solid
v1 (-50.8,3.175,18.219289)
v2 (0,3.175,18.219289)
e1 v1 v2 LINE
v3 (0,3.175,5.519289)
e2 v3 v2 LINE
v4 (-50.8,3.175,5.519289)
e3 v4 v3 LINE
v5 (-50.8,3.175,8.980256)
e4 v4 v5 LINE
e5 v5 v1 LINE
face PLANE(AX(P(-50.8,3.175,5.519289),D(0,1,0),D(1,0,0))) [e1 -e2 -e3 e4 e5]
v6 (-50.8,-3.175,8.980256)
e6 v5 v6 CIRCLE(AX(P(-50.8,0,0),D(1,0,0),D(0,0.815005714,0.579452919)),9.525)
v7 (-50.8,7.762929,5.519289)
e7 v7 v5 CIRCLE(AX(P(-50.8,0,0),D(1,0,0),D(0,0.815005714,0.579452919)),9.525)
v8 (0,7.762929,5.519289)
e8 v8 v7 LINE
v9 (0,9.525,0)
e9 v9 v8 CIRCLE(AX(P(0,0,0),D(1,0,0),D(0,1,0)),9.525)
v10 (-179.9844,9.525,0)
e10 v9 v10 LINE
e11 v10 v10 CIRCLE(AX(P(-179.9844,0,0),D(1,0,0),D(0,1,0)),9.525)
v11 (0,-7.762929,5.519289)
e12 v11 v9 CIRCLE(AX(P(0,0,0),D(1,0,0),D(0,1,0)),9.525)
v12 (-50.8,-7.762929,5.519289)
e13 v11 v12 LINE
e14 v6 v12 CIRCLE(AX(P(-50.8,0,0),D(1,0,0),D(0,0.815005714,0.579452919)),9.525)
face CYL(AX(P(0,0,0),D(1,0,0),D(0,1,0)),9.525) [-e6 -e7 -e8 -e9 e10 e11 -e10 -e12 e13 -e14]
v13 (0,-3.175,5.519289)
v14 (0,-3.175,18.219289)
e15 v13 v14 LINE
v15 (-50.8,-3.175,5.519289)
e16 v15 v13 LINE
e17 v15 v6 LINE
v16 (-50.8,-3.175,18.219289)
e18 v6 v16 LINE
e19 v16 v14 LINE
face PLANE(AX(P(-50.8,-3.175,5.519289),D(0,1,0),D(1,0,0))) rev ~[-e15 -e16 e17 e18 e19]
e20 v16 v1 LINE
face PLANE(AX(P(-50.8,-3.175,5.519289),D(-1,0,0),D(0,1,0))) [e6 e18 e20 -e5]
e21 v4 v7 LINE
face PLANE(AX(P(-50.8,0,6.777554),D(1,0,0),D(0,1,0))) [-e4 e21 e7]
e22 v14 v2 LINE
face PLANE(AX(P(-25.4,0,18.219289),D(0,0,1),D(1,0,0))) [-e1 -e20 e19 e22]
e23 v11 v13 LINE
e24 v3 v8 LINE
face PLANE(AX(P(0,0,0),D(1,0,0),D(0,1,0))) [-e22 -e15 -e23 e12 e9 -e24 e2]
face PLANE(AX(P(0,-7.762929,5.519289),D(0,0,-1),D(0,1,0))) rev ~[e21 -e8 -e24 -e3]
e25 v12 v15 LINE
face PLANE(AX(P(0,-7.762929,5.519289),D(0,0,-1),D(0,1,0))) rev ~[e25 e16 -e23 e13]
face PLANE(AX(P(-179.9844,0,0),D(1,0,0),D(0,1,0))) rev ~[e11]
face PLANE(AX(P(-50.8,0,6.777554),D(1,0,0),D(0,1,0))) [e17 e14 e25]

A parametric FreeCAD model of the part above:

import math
import FreeCAD as App
import Part
import Sketcher

V = App.Vector
Q = App.Units.Quantity


def add_polygon(sketch, points):
    """Adds a closed chain of lines whose ends are joined by coincident constraints."""
    first, n = sketch.GeometryCount, len(points)
    for a, b in zip(points, points[1:] + points[:1]):
        sketch.addGeometry(Part.LineSegment(App.Vector(*a, 0), App.Vector(*b, 0)), False)
    for i in range(n):
        sketch.addConstraint(Sketcher.Constraint("Coincident", first + i, 2, first + (i + 1) % n, 1))

doc = App.newDocument("Part")
params = doc.addObject("Spreadsheet::Sheet", "Params")
for row, (alias, value) in enumerate([
    ("sketch1_diameter", "0.75 in"),
    ("pad1_length", "7.086 in"),
    ("sketch2_radius", "0.375 in"),
    ("pocket1_length", "2 in"),
    ("sketch3_width", "2 in"),
    ("sketch3_height", "0.25 in"),
    ("pad2_length", "0.5 in"),
], start=1):
    params.set(f"A{row}", alias)
    params.set(f"B{row}", "=" + value)
    params.setAlias(f"B{row}", alias)

body = doc.addObject("PartDesign::Body", "Body")

# Sketch on YZ plane
sketch1 = doc.addObject("Sketcher::SketchObject", "Sketch")
body.addObject(sketch1)
sketch1.AttachmentSupport = (doc.YZ_Plane, [""])
sketch1.MapMode = "FlatFace"
sketch1.addGeometry(Part.Circle(V(0, 0, 0), V(0, 0, 1), 10), False)
sketch1.addConstraint([
    Sketcher.Constraint("Coincident", 0, 3, -1, 1),
    Sketcher.Constraint("Diameter", 0, Q("0.75 in")),
])
sketch1.setExpression("Constraints[1]", "Params.sketch1_diameter")
pad1 = doc.addObject("PartDesign::Pad", "Pad")
body.addObject(pad1)
pad1.Profile = sketch1
pad1.setExpression("Length", "Params.pad1_length")
pad1.Reversed = True

# Sketch on YZ plane
sketch2 = doc.addObject("Sketcher::SketchObject", "Sketch001")
body.addObject(sketch2)
sketch2.AttachmentSupport = (doc.YZ_Plane, [""])
sketch2.MapMode = "FlatFace"
sketch2.addGeometry([
    Part.LineSegment(V(-8, 6, 0), V(8, 6, 0)),
    Part.ArcOfCircle(Part.Circle(V(0, 0, 0), V(0, 0, 1), 10), math.radians(35), math.radians(145)),
], False)
sketch2.addConstraint([
    Sketcher.Constraint("Coincident", 0, 1, 1, 2),
    Sketcher.Constraint("Coincident", 1, 1, 0, 2),
    Sketcher.Constraint("Horizontal", 0),
    Sketcher.Constraint("Coincident", 1, 3, -1, 1),
    Sketcher.Constraint("Radius", 1, Q("0.375 in")),
    Sketcher.Constraint("DistanceX", 0, 1, 0, 2, Q("15.525859 mm")),
])
sketch2.setExpression("Constraints[4]", "Params.sketch2_radius")
pocket1 = doc.addObject("PartDesign::Pocket", "Pocket")
body.addObject(pocket1)
pocket1.Profile = sketch2
pocket1.setExpression("Length", "Params.pocket1_length")

# Sketch on XY plane
sketch3 = doc.addObject("Sketcher::SketchObject", "Sketch002")
body.addObject(sketch3)
sketch3.AttachmentSupport = (doc.XY_Plane, [""])
sketch3.MapMode = "FlatFace"
sketch3.AttachmentOffset = App.Placement(V(0, 0, 5.519289), App.Rotation())
add_polygon(sketch3, [(-51, 3), (-51, -3), (0, -3), (0, 3)])  # lines 0-3
sketch3.addConstraint([
    Sketcher.Constraint("Vertical", 0),
    Sketcher.Constraint("Horizontal", 1),
    Sketcher.Constraint("Vertical", 2),
    Sketcher.Constraint("Horizontal", 3),
    Sketcher.Constraint("Symmetric", 1, 2, 2, 2, -1, 1),
    Sketcher.Constraint("DistanceX", 1, 1, 1, 2, Q("2 in")),
    Sketcher.Constraint("DistanceY", 0, 2, 0, 1, Q("0.25 in")),
])
sketch3.setExpression("Constraints[9]", "Params.sketch3_width")
sketch3.setExpression("Constraints[10]", "Params.sketch3_height")
pad2 = doc.addObject("PartDesign::Pad", "Pad001")
body.addObject(pad2)
pad2.Profile = sketch3
pad2.setExpression("Length", "Params.pad2_length")

doc.recompute()
